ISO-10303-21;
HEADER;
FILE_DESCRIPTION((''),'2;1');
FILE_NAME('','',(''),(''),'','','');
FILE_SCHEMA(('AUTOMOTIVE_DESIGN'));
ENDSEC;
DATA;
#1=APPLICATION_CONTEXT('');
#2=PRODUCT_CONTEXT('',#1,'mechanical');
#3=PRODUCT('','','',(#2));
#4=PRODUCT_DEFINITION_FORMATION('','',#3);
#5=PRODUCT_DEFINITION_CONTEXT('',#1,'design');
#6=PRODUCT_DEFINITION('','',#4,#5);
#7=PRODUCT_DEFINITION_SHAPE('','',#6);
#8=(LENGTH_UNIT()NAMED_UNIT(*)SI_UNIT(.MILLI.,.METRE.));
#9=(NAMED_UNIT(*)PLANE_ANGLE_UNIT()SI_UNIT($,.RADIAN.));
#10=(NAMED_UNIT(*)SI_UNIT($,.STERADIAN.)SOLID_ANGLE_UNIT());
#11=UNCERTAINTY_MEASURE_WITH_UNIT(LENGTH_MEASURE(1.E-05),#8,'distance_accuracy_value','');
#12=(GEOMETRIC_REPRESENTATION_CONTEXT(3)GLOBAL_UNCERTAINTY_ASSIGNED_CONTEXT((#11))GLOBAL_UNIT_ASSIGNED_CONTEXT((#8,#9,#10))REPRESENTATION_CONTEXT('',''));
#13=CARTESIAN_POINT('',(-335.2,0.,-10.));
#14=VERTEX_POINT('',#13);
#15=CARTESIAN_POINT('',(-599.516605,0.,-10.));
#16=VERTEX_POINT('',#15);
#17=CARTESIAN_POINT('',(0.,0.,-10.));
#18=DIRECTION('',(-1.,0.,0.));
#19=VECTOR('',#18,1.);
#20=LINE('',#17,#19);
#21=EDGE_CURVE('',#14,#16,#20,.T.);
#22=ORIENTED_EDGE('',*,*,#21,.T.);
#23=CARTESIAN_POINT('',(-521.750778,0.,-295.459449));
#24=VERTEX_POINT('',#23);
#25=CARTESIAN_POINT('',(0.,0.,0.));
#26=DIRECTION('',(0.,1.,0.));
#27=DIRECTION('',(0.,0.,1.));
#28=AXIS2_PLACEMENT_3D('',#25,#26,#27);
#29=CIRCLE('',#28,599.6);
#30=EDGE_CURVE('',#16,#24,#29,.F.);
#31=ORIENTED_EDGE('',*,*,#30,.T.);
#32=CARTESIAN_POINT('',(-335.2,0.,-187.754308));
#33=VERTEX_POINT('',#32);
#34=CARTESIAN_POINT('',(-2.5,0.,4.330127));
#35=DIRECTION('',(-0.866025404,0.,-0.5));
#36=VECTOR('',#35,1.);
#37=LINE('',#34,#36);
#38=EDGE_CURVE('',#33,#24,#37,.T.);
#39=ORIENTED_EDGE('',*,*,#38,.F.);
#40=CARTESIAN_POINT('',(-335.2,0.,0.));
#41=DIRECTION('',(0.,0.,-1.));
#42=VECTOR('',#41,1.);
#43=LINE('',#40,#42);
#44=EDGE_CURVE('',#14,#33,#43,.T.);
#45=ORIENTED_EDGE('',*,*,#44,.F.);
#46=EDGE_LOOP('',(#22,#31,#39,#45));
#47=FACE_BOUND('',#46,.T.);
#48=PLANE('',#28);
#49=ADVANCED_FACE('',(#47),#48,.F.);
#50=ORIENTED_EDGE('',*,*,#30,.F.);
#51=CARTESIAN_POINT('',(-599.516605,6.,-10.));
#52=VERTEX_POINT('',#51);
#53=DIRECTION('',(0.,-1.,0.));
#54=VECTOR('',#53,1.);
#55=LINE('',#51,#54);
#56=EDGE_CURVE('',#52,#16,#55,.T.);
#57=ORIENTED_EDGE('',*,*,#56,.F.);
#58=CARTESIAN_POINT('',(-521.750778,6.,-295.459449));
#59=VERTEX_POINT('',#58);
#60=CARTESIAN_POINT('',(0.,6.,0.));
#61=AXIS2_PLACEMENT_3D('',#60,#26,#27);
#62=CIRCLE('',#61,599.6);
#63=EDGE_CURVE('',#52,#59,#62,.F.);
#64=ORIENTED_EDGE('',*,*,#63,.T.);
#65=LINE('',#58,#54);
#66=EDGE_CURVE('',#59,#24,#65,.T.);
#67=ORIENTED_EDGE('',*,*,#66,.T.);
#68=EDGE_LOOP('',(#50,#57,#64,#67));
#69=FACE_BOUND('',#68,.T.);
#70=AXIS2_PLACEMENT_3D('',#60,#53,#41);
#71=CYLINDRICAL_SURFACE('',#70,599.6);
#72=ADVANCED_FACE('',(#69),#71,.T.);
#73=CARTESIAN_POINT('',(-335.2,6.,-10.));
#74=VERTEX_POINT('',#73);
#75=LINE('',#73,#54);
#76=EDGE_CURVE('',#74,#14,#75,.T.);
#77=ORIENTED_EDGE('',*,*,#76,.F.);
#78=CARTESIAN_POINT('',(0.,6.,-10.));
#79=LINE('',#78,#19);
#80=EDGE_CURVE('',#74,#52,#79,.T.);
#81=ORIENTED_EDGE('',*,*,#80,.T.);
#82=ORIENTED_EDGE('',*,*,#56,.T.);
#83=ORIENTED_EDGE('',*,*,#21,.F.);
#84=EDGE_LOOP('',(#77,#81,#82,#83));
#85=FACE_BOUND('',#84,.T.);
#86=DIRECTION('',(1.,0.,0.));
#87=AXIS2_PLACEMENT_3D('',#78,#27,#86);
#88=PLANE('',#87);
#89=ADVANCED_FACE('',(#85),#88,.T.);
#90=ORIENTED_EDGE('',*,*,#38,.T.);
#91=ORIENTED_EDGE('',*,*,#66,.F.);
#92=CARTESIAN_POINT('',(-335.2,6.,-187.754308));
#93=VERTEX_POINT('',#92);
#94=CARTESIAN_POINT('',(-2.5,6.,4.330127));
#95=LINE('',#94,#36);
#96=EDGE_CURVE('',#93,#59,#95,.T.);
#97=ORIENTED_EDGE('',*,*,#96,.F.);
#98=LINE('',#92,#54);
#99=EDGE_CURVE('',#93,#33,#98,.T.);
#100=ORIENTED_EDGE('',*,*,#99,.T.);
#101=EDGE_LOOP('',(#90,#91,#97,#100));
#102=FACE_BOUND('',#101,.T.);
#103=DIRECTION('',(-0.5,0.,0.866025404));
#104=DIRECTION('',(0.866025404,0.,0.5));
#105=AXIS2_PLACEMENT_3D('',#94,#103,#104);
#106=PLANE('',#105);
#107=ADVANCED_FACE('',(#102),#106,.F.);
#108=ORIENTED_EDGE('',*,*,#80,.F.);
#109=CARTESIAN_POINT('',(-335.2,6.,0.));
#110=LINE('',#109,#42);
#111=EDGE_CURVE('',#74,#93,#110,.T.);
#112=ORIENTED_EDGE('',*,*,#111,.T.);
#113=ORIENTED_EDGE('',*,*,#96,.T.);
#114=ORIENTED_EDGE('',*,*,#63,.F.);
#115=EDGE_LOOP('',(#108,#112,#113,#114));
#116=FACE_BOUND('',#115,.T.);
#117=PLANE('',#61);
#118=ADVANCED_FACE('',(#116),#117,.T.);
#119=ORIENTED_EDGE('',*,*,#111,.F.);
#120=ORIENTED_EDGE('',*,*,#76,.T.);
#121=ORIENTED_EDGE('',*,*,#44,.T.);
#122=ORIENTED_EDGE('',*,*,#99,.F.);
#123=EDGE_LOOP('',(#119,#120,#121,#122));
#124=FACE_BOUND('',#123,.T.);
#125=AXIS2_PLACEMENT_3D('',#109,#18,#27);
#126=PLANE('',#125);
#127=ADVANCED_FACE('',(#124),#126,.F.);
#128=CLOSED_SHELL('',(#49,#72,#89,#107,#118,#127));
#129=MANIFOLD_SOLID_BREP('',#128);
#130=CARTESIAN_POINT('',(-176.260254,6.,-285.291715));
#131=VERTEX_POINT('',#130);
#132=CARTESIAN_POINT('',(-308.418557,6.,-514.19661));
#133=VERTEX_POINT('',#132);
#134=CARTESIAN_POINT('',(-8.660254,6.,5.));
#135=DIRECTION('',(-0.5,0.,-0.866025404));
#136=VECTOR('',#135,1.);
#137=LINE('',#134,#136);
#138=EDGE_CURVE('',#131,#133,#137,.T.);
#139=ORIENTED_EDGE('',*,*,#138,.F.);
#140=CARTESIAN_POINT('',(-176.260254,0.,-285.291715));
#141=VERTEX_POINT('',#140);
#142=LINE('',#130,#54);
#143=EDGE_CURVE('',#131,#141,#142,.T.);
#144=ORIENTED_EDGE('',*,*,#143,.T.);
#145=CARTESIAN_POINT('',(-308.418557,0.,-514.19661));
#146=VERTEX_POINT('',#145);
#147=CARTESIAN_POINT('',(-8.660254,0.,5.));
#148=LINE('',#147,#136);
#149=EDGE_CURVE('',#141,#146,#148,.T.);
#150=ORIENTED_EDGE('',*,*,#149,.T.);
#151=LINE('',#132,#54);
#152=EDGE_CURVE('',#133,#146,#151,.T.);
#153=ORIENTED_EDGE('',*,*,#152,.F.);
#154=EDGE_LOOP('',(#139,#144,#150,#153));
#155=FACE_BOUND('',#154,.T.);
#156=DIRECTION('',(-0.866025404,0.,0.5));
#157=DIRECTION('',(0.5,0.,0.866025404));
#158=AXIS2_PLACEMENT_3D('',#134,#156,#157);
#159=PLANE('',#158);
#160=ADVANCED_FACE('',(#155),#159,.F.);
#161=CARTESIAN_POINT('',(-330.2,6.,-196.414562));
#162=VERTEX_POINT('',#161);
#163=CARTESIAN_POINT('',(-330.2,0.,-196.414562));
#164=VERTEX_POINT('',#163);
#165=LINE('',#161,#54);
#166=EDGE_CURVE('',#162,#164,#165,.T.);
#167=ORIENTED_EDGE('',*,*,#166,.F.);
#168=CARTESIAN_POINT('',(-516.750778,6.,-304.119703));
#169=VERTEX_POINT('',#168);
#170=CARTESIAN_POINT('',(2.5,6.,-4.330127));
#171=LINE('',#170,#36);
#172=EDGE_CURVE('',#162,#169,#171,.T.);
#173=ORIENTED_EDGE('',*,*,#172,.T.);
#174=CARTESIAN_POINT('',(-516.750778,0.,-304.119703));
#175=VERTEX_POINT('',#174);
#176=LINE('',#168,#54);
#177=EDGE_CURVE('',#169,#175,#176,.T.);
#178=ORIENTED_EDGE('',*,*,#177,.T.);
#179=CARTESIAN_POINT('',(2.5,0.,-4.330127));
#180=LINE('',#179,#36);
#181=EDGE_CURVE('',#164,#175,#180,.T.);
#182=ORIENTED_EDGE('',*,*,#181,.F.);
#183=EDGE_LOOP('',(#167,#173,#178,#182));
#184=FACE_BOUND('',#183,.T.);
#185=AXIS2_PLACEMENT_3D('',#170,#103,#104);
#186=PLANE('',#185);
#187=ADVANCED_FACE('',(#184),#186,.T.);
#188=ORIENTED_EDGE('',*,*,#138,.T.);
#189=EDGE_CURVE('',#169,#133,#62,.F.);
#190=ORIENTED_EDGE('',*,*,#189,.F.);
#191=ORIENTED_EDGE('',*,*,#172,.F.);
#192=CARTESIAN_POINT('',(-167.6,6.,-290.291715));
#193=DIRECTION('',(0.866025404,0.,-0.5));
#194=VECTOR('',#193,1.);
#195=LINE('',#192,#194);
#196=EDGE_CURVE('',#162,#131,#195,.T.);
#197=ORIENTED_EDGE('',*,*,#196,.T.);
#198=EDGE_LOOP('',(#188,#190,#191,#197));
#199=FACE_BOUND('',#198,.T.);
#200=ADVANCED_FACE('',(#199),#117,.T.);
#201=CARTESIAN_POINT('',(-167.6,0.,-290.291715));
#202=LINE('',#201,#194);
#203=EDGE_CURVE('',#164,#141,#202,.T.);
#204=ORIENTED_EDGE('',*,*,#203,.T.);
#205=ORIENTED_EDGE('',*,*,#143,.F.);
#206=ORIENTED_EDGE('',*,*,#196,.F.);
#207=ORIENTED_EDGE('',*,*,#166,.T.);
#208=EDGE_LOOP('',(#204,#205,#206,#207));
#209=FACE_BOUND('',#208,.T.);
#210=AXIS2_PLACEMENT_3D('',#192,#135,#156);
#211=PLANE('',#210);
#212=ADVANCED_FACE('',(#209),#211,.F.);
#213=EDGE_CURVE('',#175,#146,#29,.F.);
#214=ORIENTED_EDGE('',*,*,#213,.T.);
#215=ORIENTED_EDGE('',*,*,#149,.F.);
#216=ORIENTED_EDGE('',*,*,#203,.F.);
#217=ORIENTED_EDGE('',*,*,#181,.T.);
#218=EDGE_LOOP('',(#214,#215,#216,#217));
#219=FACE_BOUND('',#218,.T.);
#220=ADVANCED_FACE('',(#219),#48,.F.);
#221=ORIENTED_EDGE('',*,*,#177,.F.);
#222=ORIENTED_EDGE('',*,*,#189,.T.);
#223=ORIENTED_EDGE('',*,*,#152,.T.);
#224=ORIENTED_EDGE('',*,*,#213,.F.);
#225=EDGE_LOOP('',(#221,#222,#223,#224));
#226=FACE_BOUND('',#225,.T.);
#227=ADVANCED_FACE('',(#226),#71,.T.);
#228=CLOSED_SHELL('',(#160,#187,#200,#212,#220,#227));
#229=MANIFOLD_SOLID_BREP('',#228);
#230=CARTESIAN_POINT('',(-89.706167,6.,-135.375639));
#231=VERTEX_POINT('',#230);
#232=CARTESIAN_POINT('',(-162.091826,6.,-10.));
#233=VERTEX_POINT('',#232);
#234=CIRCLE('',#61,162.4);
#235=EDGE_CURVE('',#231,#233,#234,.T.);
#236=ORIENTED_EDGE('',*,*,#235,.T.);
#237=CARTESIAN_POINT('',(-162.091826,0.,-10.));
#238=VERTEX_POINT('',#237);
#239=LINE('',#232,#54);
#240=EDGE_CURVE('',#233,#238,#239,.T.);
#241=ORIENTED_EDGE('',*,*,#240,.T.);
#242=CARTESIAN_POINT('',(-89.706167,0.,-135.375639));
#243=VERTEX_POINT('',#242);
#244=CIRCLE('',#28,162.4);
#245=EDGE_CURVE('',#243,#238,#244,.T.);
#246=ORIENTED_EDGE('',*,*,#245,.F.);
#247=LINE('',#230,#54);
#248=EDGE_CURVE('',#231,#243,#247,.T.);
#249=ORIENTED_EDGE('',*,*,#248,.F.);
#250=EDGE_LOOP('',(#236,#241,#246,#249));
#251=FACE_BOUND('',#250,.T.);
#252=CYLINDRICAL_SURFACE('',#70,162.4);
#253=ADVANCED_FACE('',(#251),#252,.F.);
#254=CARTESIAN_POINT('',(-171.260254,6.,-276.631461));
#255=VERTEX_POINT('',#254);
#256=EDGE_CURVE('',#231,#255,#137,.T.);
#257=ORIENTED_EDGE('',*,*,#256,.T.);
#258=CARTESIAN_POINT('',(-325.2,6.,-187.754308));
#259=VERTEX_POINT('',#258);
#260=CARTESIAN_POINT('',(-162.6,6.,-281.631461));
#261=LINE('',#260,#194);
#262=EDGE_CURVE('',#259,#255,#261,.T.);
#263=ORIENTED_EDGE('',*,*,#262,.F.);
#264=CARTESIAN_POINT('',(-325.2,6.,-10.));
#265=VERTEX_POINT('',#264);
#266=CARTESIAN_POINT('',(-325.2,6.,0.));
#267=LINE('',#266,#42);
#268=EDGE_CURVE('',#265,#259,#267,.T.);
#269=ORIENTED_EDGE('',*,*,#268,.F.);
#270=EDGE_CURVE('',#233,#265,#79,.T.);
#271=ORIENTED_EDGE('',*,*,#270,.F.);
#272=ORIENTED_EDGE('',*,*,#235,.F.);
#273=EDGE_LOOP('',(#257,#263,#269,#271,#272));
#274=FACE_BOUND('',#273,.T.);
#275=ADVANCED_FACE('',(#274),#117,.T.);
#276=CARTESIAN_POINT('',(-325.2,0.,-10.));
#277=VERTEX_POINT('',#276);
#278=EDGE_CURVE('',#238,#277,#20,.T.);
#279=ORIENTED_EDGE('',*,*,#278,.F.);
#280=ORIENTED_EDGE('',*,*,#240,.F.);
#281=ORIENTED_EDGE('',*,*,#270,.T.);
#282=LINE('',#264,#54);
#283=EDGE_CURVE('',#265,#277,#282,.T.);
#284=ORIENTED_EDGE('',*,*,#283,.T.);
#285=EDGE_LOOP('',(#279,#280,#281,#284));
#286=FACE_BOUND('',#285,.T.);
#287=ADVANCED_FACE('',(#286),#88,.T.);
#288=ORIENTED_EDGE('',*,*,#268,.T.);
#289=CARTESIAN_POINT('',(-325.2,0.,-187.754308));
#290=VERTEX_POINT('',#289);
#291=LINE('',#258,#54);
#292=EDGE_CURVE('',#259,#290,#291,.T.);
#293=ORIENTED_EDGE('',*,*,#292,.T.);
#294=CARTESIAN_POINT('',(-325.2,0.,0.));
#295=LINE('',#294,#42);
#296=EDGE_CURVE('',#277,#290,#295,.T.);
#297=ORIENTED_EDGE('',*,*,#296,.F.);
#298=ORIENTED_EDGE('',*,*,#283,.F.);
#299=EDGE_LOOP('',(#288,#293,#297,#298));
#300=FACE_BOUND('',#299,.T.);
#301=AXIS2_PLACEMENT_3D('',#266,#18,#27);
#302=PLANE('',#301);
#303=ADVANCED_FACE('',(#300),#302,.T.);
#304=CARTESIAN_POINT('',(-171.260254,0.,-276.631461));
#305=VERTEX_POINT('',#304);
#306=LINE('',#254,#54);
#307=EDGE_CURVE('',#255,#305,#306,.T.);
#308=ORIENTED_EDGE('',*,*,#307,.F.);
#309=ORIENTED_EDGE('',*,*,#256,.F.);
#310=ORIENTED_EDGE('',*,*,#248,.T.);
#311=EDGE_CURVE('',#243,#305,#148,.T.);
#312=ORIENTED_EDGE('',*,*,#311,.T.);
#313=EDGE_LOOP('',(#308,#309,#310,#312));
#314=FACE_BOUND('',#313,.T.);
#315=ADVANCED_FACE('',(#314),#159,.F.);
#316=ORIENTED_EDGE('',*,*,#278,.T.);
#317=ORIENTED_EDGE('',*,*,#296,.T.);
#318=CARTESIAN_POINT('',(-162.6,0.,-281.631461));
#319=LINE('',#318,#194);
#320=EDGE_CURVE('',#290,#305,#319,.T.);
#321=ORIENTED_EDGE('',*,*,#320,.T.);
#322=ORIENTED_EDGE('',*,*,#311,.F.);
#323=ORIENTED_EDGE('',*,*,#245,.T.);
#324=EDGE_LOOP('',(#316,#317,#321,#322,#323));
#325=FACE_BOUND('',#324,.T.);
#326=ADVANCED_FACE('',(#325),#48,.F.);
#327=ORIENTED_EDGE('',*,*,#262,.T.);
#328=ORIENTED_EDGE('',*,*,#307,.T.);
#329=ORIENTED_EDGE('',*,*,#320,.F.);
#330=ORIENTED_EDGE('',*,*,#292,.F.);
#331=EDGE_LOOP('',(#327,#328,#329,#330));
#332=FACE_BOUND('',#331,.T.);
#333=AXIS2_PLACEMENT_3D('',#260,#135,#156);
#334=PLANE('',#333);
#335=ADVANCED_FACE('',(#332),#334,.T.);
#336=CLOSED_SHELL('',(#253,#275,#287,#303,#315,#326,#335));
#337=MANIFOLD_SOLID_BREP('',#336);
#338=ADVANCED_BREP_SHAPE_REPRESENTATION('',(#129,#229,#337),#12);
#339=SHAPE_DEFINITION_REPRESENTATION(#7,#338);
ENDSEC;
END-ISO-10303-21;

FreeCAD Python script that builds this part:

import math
import FreeCAD as App
import Part
import Sketcher

V = App.Vector
Q = App.Units.Quantity

doc = App.newDocument("Part")
body = doc.addObject("PartDesign::Body", "Body")

# Sketch on XZ plane
sketch1 = body.newObject("Sketcher::SketchObject", "Sketch")
sketch1.AttachmentSupport = (doc.getObject("XZ_Plane"), [""])
sketch1.MapMode = "FlatFace"
sketch1.addGeometry([
    Part.ArcOfCircle(Part.Circle(V(0, 0, 0), V(0, 0, 1), 600), math.radians(-179), math.radians(-150)),
    Part.LineSegment(V(-600, -10, 0), V(-335, -10, 0)),
    Part.LineSegment(V(-335, -10, 0), V(-335, -188, 0)),
    Part.LineSegment(V(-335, -188, 0), V(-522, -295, 0)),
], False)
sketch1.addConstraint([
    Sketcher.Constraint("Coincident", 0, 1, 1, 1),
    Sketcher.Constraint("Coincident", 1, 2, 2, 1),
    Sketcher.Constraint("Coincident", 2, 2, 3, 1),
    Sketcher.Constraint("Coincident", 3, 2, 0, 2),
    Sketcher.Constraint("Horizontal", 1),
    Sketcher.Constraint("Vertical", 2),
    Sketcher.Constraint("Coincident", 0, 3, -1, 1),
    Sketcher.Constraint("Radius", 0, 599.6),
    Sketcher.Constraint("Angle", 3, Q("-150 deg")),
    Sketcher.Constraint("DistanceY", 1, 2, -1, 1, 10.0),
    Sketcher.Constraint("DistanceX", 1, 2, -1, 1, 335.2),
    Sketcher.Constraint("DistanceY", 2, 2, 2, 1, 177.754308),
])
pad1 = body.newObject("PartDesign::Pad", "Pad")
pad1.Profile = sketch1
pad1.Length = 6
pad1.Reversed = True
body2 = doc.addObject("PartDesign::Body", "Body001")

# Sketch on XZ plane
sketch2 = body2.newObject("Sketcher::SketchObject", "Sketch001")
sketch2.AttachmentSupport = (doc.getObject("XZ_Plane001"), [""])
sketch2.MapMode = "FlatFace"
sketch2.addGeometry([
    Part.ArcOfCircle(Part.Circle(V(0, 0, 0), V(0, 0, 1), 600), math.radians(-150), math.radians(-121)),
    Part.LineSegment(V(-517, -304, 0), V(-330, -196, 0)),
    Part.LineSegment(V(-330, -196, 0), V(-176, -285, 0)),
    Part.LineSegment(V(-176, -285, 0), V(-308, -514, 0)),
], False)
sketch2.addConstraint([
    Sketcher.Constraint("Coincident", 0, 1, 1, 1),
    Sketcher.Constraint("Coincident", 1, 2, 2, 1),
    Sketcher.Constraint("Coincident", 2, 2, 3, 1),
    Sketcher.Constraint("Coincident", 3, 2, 0, 2),
    Sketcher.Constraint("Coincident", 0, 3, -1, 1),
    Sketcher.Constraint("Perpendicular", 2, 3),
    Sketcher.Constraint("Radius", 0, 599.6),
    Sketcher.Constraint("Angle", 1, Q("30 deg")),
    Sketcher.Constraint("Angle", 2, Q("-30 deg")),
    Sketcher.Constraint("DistanceX", 1, 2, -1, 1, 330.2),
    Sketcher.Constraint("DistanceY", 1, 2, -1, 1, 196.414562),
    Sketcher.Constraint("DistanceY", 3, 2, -1, 1, 514.19661),
])
pad2 = body2.newObject("PartDesign::Pad", "Pad001")
pad2.Profile = sketch2
pad2.Length = 6
pad2.Reversed = True
body3 = doc.addObject("PartDesign::Body", "Body002")

# Sketch on XZ plane
sketch3 = body3.newObject("Sketcher::SketchObject", "Sketch002")
sketch3.AttachmentSupport = (doc.getObject("XZ_Plane002"), [""])
sketch3.MapMode = "FlatFace"
sketch3.addGeometry([
    Part.ArcOfCircle(Part.Circle(V(0, 0, 0), V(0, 0, 1), 162), math.radians(-176), math.radians(-124)),  # 0
    Part.LineSegment(V(-90, -135, 0), V(-171, -277, 0)),  # 1
    Part.LineSegment(V(-171, -277, 0), V(-325, -188, 0)),  # 2
    Part.LineSegment(V(-325, -188, 0), V(-325, -10, 0)),  # 3
    Part.LineSegment(V(-325, -10, 0), V(-162, -10, 0)),  # 4
], False)
sketch3.addConstraint([
    Sketcher.Constraint("Coincident", 0, 2, 1, 1),
    Sketcher.Constraint("Coincident", 1, 2, 2, 1),
    Sketcher.Constraint("Coincident", 2, 2, 3, 1),
    Sketcher.Constraint("Coincident", 3, 2, 4, 1),
    Sketcher.Constraint("Coincident", 4, 2, 0, 1),
    Sketcher.Constraint("Vertical", 3),
    Sketcher.Constraint("Horizontal", 4),
    Sketcher.Constraint("Coincident", 0, 3, -1, 1),
    Sketcher.Constraint("Perpendicular", 1, 2),
    Sketcher.Constraint("Radius", 0, 162.4),
    Sketcher.Constraint("Angle", 1, Q("-120 deg")),
    Sketcher.Constraint("DistanceY", 3, 2, -1, 1, 10.0),
    Sketcher.Constraint("DistanceX", 2, 2, -1, 1, 325.2),
    Sketcher.Constraint("DistanceY", 3, 1, 3, 2, 177.754308),
    Sketcher.Constraint("DistanceY", 0, 2, -1, 1, 135.375639),
])
pad3 = body3.newObject("PartDesign::Pad", "Pad002")
pad3.Profile = sketch3
pad3.Length = 6
pad3.Reversed = True

doc.recompute()
